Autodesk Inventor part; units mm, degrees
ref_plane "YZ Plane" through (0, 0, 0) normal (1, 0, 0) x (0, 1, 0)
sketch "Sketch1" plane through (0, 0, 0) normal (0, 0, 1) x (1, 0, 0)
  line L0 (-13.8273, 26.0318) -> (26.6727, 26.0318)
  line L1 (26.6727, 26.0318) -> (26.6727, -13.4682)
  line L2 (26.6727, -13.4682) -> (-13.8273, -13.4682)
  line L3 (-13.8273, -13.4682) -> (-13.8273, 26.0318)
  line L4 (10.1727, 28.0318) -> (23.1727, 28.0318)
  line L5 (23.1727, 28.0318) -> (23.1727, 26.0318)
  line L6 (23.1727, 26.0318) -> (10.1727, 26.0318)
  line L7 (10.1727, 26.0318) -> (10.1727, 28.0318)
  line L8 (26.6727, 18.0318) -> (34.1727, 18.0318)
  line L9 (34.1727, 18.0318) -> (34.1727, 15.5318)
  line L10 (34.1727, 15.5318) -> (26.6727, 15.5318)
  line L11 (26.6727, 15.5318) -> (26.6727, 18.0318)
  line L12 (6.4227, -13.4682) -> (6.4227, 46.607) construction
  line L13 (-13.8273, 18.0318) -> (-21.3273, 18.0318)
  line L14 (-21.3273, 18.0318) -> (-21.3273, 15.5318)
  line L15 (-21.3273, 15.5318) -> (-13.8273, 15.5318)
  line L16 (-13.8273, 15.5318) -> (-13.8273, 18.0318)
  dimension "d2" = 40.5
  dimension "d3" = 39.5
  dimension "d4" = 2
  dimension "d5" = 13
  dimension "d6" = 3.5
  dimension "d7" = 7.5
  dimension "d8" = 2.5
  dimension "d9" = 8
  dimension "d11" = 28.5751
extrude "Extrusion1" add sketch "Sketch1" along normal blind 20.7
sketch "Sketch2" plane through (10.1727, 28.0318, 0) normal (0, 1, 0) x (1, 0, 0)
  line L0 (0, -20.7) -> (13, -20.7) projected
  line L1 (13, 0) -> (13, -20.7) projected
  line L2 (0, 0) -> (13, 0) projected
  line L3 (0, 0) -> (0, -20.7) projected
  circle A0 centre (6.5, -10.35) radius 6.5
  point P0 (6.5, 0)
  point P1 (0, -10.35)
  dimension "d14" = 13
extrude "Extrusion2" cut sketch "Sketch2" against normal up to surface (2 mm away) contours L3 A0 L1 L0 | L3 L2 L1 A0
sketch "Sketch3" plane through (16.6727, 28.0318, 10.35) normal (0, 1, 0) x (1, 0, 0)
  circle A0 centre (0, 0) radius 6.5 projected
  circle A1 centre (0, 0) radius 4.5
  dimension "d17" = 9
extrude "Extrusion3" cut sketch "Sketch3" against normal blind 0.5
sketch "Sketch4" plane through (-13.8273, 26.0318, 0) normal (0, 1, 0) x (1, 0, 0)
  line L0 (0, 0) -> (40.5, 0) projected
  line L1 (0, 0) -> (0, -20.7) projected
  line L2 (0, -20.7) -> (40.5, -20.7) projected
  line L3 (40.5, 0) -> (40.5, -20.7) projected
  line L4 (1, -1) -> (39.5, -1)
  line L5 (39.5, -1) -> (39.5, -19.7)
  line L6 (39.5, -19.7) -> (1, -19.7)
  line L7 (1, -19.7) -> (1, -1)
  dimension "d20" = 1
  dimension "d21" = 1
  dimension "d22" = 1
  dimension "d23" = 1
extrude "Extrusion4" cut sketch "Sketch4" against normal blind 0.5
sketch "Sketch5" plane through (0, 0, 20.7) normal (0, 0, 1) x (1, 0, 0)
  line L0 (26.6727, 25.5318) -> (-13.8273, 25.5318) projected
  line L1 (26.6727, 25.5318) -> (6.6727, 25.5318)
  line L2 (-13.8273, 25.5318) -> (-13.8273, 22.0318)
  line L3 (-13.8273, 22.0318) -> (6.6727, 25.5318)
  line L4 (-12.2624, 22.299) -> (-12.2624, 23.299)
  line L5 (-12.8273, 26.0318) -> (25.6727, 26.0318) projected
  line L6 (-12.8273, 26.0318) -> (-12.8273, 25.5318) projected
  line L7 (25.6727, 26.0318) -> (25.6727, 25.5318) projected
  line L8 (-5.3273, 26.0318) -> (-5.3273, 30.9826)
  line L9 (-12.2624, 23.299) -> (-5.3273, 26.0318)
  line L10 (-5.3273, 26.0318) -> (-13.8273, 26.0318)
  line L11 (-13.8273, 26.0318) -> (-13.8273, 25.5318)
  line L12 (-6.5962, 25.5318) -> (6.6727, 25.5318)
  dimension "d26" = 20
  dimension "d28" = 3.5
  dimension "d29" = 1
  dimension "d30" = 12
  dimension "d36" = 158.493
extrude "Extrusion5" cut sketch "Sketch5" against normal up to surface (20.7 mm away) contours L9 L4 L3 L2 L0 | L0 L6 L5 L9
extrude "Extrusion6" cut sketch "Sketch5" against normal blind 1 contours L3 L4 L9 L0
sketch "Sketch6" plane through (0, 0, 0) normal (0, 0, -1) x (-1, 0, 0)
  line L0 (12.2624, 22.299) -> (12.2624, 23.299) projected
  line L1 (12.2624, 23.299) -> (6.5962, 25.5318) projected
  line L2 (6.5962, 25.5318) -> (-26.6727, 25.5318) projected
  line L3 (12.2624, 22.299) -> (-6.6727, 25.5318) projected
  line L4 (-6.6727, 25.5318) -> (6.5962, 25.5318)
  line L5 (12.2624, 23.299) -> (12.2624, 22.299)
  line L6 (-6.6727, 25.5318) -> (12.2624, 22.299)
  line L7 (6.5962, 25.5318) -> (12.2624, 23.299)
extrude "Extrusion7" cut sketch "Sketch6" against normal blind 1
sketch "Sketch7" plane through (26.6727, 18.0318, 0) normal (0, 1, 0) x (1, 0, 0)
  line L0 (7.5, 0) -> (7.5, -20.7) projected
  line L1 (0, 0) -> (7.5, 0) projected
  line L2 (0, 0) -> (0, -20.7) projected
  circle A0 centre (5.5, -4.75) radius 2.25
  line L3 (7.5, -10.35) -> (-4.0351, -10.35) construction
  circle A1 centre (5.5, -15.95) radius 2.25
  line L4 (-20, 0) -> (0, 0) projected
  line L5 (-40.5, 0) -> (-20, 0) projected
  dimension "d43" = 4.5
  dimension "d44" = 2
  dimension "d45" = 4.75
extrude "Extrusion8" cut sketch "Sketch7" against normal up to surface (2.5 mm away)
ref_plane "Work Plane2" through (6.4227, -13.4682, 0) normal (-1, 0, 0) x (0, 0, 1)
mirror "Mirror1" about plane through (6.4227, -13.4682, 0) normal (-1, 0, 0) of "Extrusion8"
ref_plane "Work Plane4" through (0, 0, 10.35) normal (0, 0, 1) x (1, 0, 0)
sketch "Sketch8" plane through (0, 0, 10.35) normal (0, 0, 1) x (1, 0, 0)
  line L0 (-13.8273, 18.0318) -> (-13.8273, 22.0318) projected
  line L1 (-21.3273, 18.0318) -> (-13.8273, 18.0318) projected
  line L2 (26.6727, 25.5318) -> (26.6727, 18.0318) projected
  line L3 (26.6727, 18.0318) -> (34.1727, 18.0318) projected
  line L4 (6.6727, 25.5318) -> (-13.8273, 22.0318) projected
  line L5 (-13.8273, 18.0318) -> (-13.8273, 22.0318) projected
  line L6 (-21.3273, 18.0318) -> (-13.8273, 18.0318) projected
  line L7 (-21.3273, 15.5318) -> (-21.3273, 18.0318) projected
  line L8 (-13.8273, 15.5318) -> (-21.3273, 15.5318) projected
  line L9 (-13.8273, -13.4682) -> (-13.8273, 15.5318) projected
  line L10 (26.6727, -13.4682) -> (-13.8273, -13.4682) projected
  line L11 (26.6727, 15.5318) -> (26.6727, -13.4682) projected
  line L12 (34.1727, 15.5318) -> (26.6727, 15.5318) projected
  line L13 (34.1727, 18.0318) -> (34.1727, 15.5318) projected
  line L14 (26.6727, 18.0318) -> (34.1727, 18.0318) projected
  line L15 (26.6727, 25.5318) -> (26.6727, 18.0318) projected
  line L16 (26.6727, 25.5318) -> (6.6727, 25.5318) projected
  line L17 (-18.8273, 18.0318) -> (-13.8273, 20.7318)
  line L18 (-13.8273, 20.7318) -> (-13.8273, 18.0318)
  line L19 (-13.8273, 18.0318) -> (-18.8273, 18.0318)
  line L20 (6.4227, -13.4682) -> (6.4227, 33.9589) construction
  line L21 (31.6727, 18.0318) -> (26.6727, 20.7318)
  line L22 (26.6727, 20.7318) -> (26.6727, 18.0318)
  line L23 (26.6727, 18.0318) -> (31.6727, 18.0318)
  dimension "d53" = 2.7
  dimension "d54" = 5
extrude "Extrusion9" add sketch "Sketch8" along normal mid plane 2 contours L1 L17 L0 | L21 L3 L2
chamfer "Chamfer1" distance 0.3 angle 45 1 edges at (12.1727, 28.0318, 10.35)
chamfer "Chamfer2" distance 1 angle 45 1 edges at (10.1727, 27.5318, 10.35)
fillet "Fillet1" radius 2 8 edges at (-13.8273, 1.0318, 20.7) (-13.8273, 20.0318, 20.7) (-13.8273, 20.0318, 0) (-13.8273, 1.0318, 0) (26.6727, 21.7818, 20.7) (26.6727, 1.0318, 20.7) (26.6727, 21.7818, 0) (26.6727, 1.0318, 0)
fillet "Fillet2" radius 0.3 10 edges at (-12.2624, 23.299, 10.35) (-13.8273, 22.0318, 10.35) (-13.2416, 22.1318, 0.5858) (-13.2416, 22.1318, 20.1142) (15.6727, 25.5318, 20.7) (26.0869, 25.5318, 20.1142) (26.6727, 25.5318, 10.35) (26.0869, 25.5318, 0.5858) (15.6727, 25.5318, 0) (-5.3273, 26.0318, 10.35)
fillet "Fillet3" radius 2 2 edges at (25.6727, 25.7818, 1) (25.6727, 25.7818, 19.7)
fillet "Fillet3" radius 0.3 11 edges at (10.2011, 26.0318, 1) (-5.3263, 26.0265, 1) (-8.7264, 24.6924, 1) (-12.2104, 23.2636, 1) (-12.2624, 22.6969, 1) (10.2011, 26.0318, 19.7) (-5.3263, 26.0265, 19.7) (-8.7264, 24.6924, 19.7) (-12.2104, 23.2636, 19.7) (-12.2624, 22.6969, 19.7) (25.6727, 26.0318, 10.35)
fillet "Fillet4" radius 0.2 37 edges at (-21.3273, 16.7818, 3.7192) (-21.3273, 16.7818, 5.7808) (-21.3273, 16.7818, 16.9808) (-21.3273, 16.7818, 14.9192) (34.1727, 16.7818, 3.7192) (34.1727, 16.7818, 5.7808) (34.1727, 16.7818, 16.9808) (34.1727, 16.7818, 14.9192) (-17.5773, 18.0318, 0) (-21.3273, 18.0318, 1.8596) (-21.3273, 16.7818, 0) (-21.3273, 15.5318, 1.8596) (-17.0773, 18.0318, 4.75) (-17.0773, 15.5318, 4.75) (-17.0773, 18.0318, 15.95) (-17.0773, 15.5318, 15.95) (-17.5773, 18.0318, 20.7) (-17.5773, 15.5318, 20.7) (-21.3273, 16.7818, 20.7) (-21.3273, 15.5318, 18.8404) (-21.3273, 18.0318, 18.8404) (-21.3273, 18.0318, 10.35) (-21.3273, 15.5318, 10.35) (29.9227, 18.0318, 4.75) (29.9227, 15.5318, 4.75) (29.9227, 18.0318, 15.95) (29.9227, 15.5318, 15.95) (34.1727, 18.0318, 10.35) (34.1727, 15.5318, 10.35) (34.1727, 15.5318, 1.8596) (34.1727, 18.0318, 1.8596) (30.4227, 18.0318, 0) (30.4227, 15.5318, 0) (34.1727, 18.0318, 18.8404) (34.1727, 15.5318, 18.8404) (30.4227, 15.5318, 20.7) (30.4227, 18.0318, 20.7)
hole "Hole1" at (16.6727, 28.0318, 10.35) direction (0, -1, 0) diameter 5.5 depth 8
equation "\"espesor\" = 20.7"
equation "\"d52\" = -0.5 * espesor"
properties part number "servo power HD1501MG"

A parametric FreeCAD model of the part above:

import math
import FreeCAD as App
import Part
import Sketcher
from FreeCAD import Vector


def edges_at(feature, points):
    """Names of the edges that pass closest to the given points."""
    edges = feature.Shape.Edges
    near = lambda p: min(range(len(edges)), key=lambda i: edges[i].distToShape(Part.Vertex(*p))[0])
    return sorted({f"Edge{near(p) + 1}" for p in points})

doc = App.newDocument("Part")
body = doc.addObject("PartDesign::Body", "Body")

# Sketch on XY plane
sketch1 = doc.addObject("Sketcher::SketchObject", "Sketch")
body.addObject(sketch1)
sketch1.AttachmentSupport = (doc.XY_Plane, [""])
sketch1.MapMode = "FlatFace"
sketch1.addGeometry(Part.LineSegment(Vector(10.2, 26, 0), Vector(-13.8, 26, 0)), False)
sketch1.addGeometry(Part.LineSegment(Vector(-13.8, 26, 0), Vector(-13.8, 18, 0)), False)
sketch1.addGeometry(Part.LineSegment(Vector(-13.8, 18, 0), Vector(-21.3, 18, 0)), False)
sketch1.addGeometry(Part.LineSegment(Vector(-21.3, 18, 0), Vector(-21.3, 15.5, 0)), False)
sketch1.addGeometry(Part.LineSegment(Vector(-21.3, 15.5, 0), Vector(-13.8, 15.5, 0)), False)
sketch1.addGeometry(Part.LineSegment(Vector(-13.8, 15.5, 0), Vector(-13.8, -13.5, 0)), False)
sketch1.addGeometry(Part.LineSegment(Vector(-13.8, -13.5, 0), Vector(26.7, -13.5, 0)), False)
sketch1.addGeometry(Part.LineSegment(Vector(26.7, -13.5, 0), Vector(26.7, 15.5, 0)), False)
sketch1.addGeometry(Part.LineSegment(Vector(26.7, 15.5, 0), Vector(34.2, 15.5, 0)), False)
sketch1.addGeometry(Part.LineSegment(Vector(34.2, 15.5, 0), Vector(34.2, 18, 0)), False)
sketch1.addGeometry(Part.LineSegment(Vector(34.2, 18, 0), Vector(26.7, 18, 0)), False)
sketch1.addGeometry(Part.LineSegment(Vector(26.7, 18, 0), Vector(26.7, 26, 0)), False)
sketch1.addGeometry(Part.LineSegment(Vector(26.7, 26, 0), Vector(23.2, 26, 0)), False)
sketch1.addGeometry(Part.LineSegment(Vector(23.2, 26, 0), Vector(23.2, 28, 0)), False)
sketch1.addGeometry(Part.LineSegment(Vector(23.2, 28, 0), Vector(10.2, 28, 0)), False)
sketch1.addGeometry(Part.LineSegment(Vector(10.2, 28, 0), Vector(10.2, 26, 0)), False)
sketch1.addConstraint(Sketcher.Constraint("Coincident", 0, 2, 1, 1))
sketch1.addConstraint(Sketcher.Constraint("Coincident", 1, 2, 2, 1))
sketch1.addConstraint(Sketcher.Constraint("Coincident", 2, 2, 3, 1))
sketch1.addConstraint(Sketcher.Constraint("Coincident", 3, 2, 4, 1))
sketch1.addConstraint(Sketcher.Constraint("Coincident", 4, 2, 5, 1))
sketch1.addConstraint(Sketcher.Constraint("Coincident", 5, 2, 6, 1))
sketch1.addConstraint(Sketcher.Constraint("Coincident", 6, 2, 7, 1))
sketch1.addConstraint(Sketcher.Constraint("Coincident", 7, 2, 8, 1))
sketch1.addConstraint(Sketcher.Constraint("Coincident", 8, 2, 9, 1))
sketch1.addConstraint(Sketcher.Constraint("Coincident", 9, 2, 10, 1))
sketch1.addConstraint(Sketcher.Constraint("Coincident", 10, 2, 11, 1))
sketch1.addConstraint(Sketcher.Constraint("Coincident", 11, 2, 12, 1))
sketch1.addConstraint(Sketcher.Constraint("Coincident", 12, 2, 13, 1))
sketch1.addConstraint(Sketcher.Constraint("Coincident", 13, 2, 14, 1))
sketch1.addConstraint(Sketcher.Constraint("Coincident", 14, 2, 15, 1))
sketch1.addConstraint(Sketcher.Constraint("Coincident", 15, 2, 0, 1))
sketch1.addConstraint(Sketcher.Constraint("Horizontal", 0))
sketch1.addConstraint(Sketcher.Constraint("Vertical", 1))
sketch1.addConstraint(Sketcher.Constraint("Horizontal", 2))
sketch1.addConstraint(Sketcher.Constraint("Vertical", 3))
sketch1.addConstraint(Sketcher.Constraint("Horizontal", 4))
sketch1.addConstraint(Sketcher.Constraint("Vertical", 5))
sketch1.addConstraint(Sketcher.Constraint("Horizontal", 6))
sketch1.addConstraint(Sketcher.Constraint("Vertical", 7))
sketch1.addConstraint(Sketcher.Constraint("Horizontal", 8))
sketch1.addConstraint(Sketcher.Constraint("Vertical", 9))
sketch1.addConstraint(Sketcher.Constraint("Horizontal", 10))
sketch1.addConstraint(Sketcher.Constraint("Vertical", 11))
sketch1.addConstraint(Sketcher.Constraint("Horizontal", 12))
sketch1.addConstraint(Sketcher.Constraint("Vertical", 13))
sketch1.addConstraint(Sketcher.Constraint("Horizontal", 14))
sketch1.addConstraint(Sketcher.Constraint("Vertical", 15))
sketch1.addConstraint(Sketcher.Constraint("Horizontal", 4, 2, 7, 2))
sketch1.addConstraint(Sketcher.Constraint("Horizontal", 2, 2, 9, 2))
sketch1.addConstraint(Sketcher.Constraint("Horizontal", 0, 2, 11, 2))
sketch1.addConstraint(Sketcher.Constraint("Vertical", 1, 2, 4, 2))
sketch1.addConstraint(Sketcher.Constraint("Vertical", 7, 2, 10, 2))
sketch1.addConstraint(Sketcher.Constraint("Equal", 4, 8))
sketch1.addConstraint(Sketcher.Constraint("DistanceX", 14, 2, 14, 1, 13.0))
sketch1.addConstraint(Sketcher.Constraint("DistanceY", 1, 2, 1, 1, 8.0))
sketch1.addConstraint(Sketcher.Constraint("DistanceY", 13, 1, 13, 2, 2.0))
sketch1.addConstraint(Sketcher.Constraint("DistanceX", 2, 2, 2, 1, 7.5))
sketch1.addConstraint(Sketcher.Constraint("DistanceX", 6, 1, 6, 2, 40.5))
sketch1.addConstraint(Sketcher.Constraint("DistanceX", 12, 2, 12, 1, 3.5))
sketch1.addConstraint(Sketcher.Constraint("DistanceY", 3, 2, 3, 1, 2.5))
sketch1.addConstraint(Sketcher.Constraint("DistanceY", 5, 2, 0, 2, 39.5))
sketch1.addConstraint(Sketcher.Constraint("DistanceX", 0, 2, -1, 1, 13.8273))
sketch1.addConstraint(Sketcher.Constraint("DistanceY", -1, 1, 0, 2, 26.0318))
pad1 = doc.addObject("PartDesign::Pad", "Pad")
body.addObject(pad1)
pad1.Profile = sketch1
pad1.Length = 20.7

# Sketch on XZ plane
sketch2 = doc.addObject("Sketcher::SketchObject", "Sketch001")
body.addObject(sketch2)
sketch2.AttachmentSupport = (doc.XZ_Plane, [""])
sketch2.MapMode = "FlatFace"
sketch2.AttachmentOffset = App.Placement(Vector(0, 0, -28.0318), App.Rotation())
sketch2.addGeometry(Part.LineSegment(Vector(10, 10, 0), Vector(10, 21, 0)), False)
sketch2.addGeometry(Part.LineSegment(Vector(10, 21, 0), Vector(23, 21, 0)), False)
sketch2.addGeometry(Part.LineSegment(Vector(23, 21, 0), Vector(23, 10, 0)), False)
sketch2.addGeometry(Part.ArcOfCircle(Part.Circle(Vector(17, 10, 0), Vector(0, 0, 1), 6), math.radians(0), math.radians(180)), False)
sketch2.addGeometry(Part.LineSegment(Vector(10, 0, 0), Vector(10, 10, 0)), False)
sketch2.addGeometry(Part.ArcOfCircle(Part.Circle(Vector(17, 10, 0), Vector(0, 0, 1), 6), math.radians(180), math.radians(360)), False)
sketch2.addGeometry(Part.LineSegment(Vector(23, 10, 0), Vector(23, 0, 0)), False)
sketch2.addGeometry(Part.LineSegment(Vector(23, 0, 0), Vector(10, 0, 0)), False)
sketch2.addConstraint(Sketcher.Constraint("Coincident", 0, 2, 1, 1))
sketch2.addConstraint(Sketcher.Constraint("Coincident", 1, 2, 2, 1))
sketch2.addConstraint(Sketcher.Constraint("Tangent", 2, 2, 3, 1))
sketch2.addConstraint(Sketcher.Constraint("Tangent", 3, 2, 0, 1))
sketch2.addConstraint(Sketcher.Constraint("Tangent", 4, 2, 5, 1))
sketch2.addConstraint(Sketcher.Constraint("Tangent", 5, 2, 6, 1))
sketch2.addConstraint(Sketcher.Constraint("Coincident", 6, 2, 7, 1))
sketch2.addConstraint(Sketcher.Constraint("Coincident", 7, 2, 4, 1))
sketch2.addConstraint(Sketcher.Constraint("Vertical", 0))
sketch2.addConstraint(Sketcher.Constraint("Horizontal", 1))
sketch2.addConstraint(Sketcher.Constraint("Vertical", 2))
sketch2.addConstraint(Sketcher.Constraint("Vertical", 4))
sketch2.addConstraint(Sketcher.Constraint("Vertical", 6))
sketch2.addConstraint(Sketcher.Constraint("Horizontal", 7))
sketch2.addConstraint(Sketcher.Constraint("Coincident", 5, 3, 3, 3))
sketch2.addConstraint(Sketcher.Constraint("Equal", 3, 5))
sketch2.addConstraint(Sketcher.Constraint("PointOnObject", 6, 2, -1))
sketch2.addConstraint(Sketcher.Constraint("Equal", 2, 4))
sketch2.addConstraint(Sketcher.Constraint("Radius", 3, 6.5))
sketch2.addConstraint(Sketcher.Constraint("DistanceY", 0, 1, 0, 2, 10.35))
sketch2.addConstraint(Sketcher.Constraint("DistanceX", -1, 1, 3, 3, 16.6727))
pocket1 = doc.addObject("PartDesign::Pocket", "Pocket")
body.addObject(pocket1)
pocket1.Profile = sketch2
pocket1.Length = 2
pocket1.Reversed = True

# Sketch on XZ plane
sketch3 = doc.addObject("Sketcher::SketchObject", "Sketch002")
body.addObject(sketch3)
sketch3.AttachmentSupport = (doc.XZ_Plane, [""])
sketch3.MapMode = "FlatFace"
sketch3.AttachmentOffset = App.Placement(Vector(0, 0, -28.0318), App.Rotation())
sketch3.addGeometry(Part.Circle(Vector(16.7, 10.3, 0), Vector(0, 0, 1), 6.5), False)
sketch3.addGeometry(Part.Circle(Vector(16.7, 10.3, 0), Vector(0, 0, 1), 4.5), False)
sketch3.addConstraint(Sketcher.Constraint("Coincident", 1, 3, 0, 3))
sketch3.addConstraint(Sketcher.Constraint("Diameter", 1, 9.0))
sketch3.addConstraint(Sketcher.Constraint("Diameter", 0, 13.0))
sketch3.addConstraint(Sketcher.Constraint("DistanceY", -1, 1, 0, 3, 10.35))
sketch3.addConstraint(Sketcher.Constraint("DistanceX", -1, 1, 0, 3, 16.6727))
pocket2 = doc.addObject("PartDesign::Pocket", "Pocket001")
body.addObject(pocket2)
pocket2.Profile = sketch3
pocket2.Length = 0.5
pocket2.Reversed = True

# Sketch on XZ plane
sketch4 = doc.addObject("Sketcher::SketchObject", "Sketch003")
body.addObject(sketch4)
sketch4.AttachmentSupport = (doc.XZ_Plane, [""])
sketch4.MapMode = "FlatFace"
sketch4.AttachmentOffset = App.Placement(Vector(0, 0, -26.0318), App.Rotation())
sketch4.addGeometry(Part.LineSegment(Vector(27, 0, 0), Vector(-14, 0, 0)), False)
sketch4.addGeometry(Part.LineSegment(Vector(-14, 0, 0), Vector(-14, 21, 0)), False)
sketch4.addGeometry(Part.LineSegment(Vector(-14, 21, 0), Vector(27, 21, 0)), False)
sketch4.addGeometry(Part.LineSegment(Vector(27, 21, 0), Vector(27, 0, 0)), False)
sketch4.addGeometry(Part.LineSegment(Vector(-13, 20, 0), Vector(-13, 1, 0)), False)
sketch4.addGeometry(Part.LineSegment(Vector(-13, 1, 0), Vector(26, 1, 0)), False)
sketch4.addGeometry(Part.LineSegment(Vector(26, 1, 0), Vector(26, 20, 0)), False)
sketch4.addGeometry(Part.LineSegment(Vector(26, 20, 0), Vector(-13, 20, 0)), False)
sketch4.addConstraint(Sketcher.Constraint("Coincident", 0, 2, 1, 1))
sketch4.addConstraint(Sketcher.Constraint("Coincident", 1, 2, 2, 1))
sketch4.addConstraint(Sketcher.Constraint("Coincident", 2, 2, 3, 1))
sketch4.addConstraint(Sketcher.Constraint("Coincident", 3, 2, 0, 1))
sketch4.addConstraint(Sketcher.Constraint("Coincident", 4, 2, 5, 1))
sketch4.addConstraint(Sketcher.Constraint("Coincident", 5, 2, 6, 1))
sketch4.addConstraint(Sketcher.Constraint("Coincident", 6, 2, 7, 1))
sketch4.addConstraint(Sketcher.Constraint("Coincident", 7, 2, 4, 1))
sketch4.addConstraint(Sketcher.Constraint("Horizontal", 0))
sketch4.addConstraint(Sketcher.Constraint("Vertical", 1))
sketch4.addConstraint(Sketcher.Constraint("Horizontal", 2))
sketch4.addConstraint(Sketcher.Constraint("Vertical", 3))
sketch4.addConstraint(Sketcher.Constraint("Vertical", 4))
sketch4.addConstraint(Sketcher.Constraint("Horizontal", 5))
sketch4.addConstraint(Sketcher.Constraint("Vertical", 6))
sketch4.addConstraint(Sketcher.Constraint("Horizontal", 7))
sketch4.addConstraint(Sketcher.Constraint("PointOnObject", 0, 2, -1))
sketch4.addConstraint(Sketcher.Constraint("DistanceY", -1, 1, 4, 2, 1.0))
sketch4.addConstraint(Sketcher.Constraint("DistanceX", 0, 2, 4, 2, 1.0))
sketch4.addConstraint(Sketcher.Constraint("DistanceX", 5, 2, 3, 2, 1.0))
sketch4.addConstraint(Sketcher.Constraint("DistanceY", 6, 2, 2, 2, 1.0))
sketch4.addConstraint(Sketcher.Constraint("DistanceX", 0, 2, 0, 1, 40.5))
sketch4.addConstraint(Sketcher.Constraint("DistanceY", 1, 1, 1, 2, 20.7))
sketch4.addConstraint(Sketcher.Constraint("DistanceX", 0, 2, -1, 1, 13.8273))
pocket3 = doc.addObject("PartDesign::Pocket", "Pocket002")
body.addObject(pocket3)
pocket3.Profile = sketch4
pocket3.Length = 0.5
pocket3.Reversed = True

# Sketch on XY plane
sketch5 = doc.addObject("Sketcher::SketchObject", "Sketch004")
body.addObject(sketch5)
sketch5.AttachmentSupport = (doc.XY_Plane, [""])
sketch5.MapMode = "FlatFace"
sketch5.AttachmentOffset = App.Placement(Vector(0, 0, 20.7), App.Rotation())
sketch5.addGeometry(Part.LineSegment(Vector(-12.3, 23.3, 0), Vector(-5.3, 26, 0)), False)
sketch5.addGeometry(Part.LineSegment(Vector(-5.3, 26, 0), Vector(-12.8, 26, 0)), False)
sketch5.addGeometry(Part.LineSegment(Vector(-12.8, 26, 0), Vector(-12.8, 25.5, 0)), False)
sketch5.addGeometry(Part.LineSegment(Vector(-12.8, 25.5, 0), Vector(-13.8, 25.5, 0)), False)
sketch5.addGeometry(Part.LineSegment(Vector(-13.8, 25.5, 0), Vector(-13.8, 22, 0)), False)
sketch5.addGeometry(Part.LineSegment(Vector(-13.8, 22, 0), Vector(-12.3, 22.3, 0)), False)
sketch5.addGeometry(Part.LineSegment(Vector(-12.3, 22.3, 0), Vector(-12.3, 23.3, 0)), False)
sketch5.addConstraint(Sketcher.Constraint("Coincident", 0, 2, 1, 1))
sketch5.addConstraint(Sketcher.Constraint("Coincident", 1, 2, 2, 1))
sketch5.addConstraint(Sketcher.Constraint("Coincident", 2, 2, 3, 1))
sketch5.addConstraint(Sketcher.Constraint("Coincident", 3, 2, 4, 1))
sketch5.addConstraint(Sketcher.Constraint("Coincident", 4, 2, 5, 1))
sketch5.addConstraint(Sketcher.Constraint("Coincident", 5, 2, 6, 1))
sketch5.addConstraint(Sketcher.Constraint("Coincident", 6, 2, 0, 1))
sketch5.addConstraint(Sketcher.Constraint("Horizontal", 1))
sketch5.addConstraint(Sketcher.Constraint("Vertical", 2))
sketch5.addConstraint(Sketcher.Constraint("Horizontal", 3))
sketch5.addConstraint(Sketcher.Constraint("Vertical", 4))
sketch5.addConstraint(Sketcher.Constraint("Vertical", 6))
sketch5.addConstraint(Sketcher.Constraint("Equal", 3, 6))
sketch5.addConstraint(Sketcher.Constraint("DistanceX", 3, 2, 3, 1, 1.0))
sketch5.addConstraint(Sketcher.Constraint("DistanceY", 4, 2, 4, 1, 3.5))
sketch5.addConstraint(Sketcher.Constraint("DistanceX", 1, 2, 1, 1, 7.5))
sketch5.addConstraint(Sketcher.Constraint("DistanceY", 2, 2, 2, 1, 0.5))
sketch5.addConstraint(Sketcher.Constraint("Distance", 0, 7.454))
sketch5.addConstraint(Sketcher.Constraint("DistanceY", -1, 1, 5, 2, 22.299))
sketch5.addConstraint(Sketcher.Constraint("DistanceX", 4, 2, 5, 2, 1.565))
sketch5.addConstraint(Sketcher.Constraint("DistanceX", 0, 2, -1, 1, 5.3273))
pocket4 = doc.addObject("PartDesign::Pocket", "Pocket003")
body.addObject(pocket4)
pocket4.Profile = sketch5
pocket4.Length = 20.7

# Sketch on XY plane
sketch6 = doc.addObject("Sketcher::SketchObject", "Sketch005")
body.addObject(sketch6)
sketch6.AttachmentSupport = (doc.XY_Plane, [""])
sketch6.MapMode = "FlatFace"
sketch6.AttachmentOffset = App.Placement(Vector(0, 0, 20.7), App.Rotation())
sketch6.addGeometry(Part.LineSegment(Vector(-12.3, 22.3, 0), Vector(6.7, 25.5, 0)), False)
sketch6.addGeometry(Part.LineSegment(Vector(6.7, 25.5, 0), Vector(-6.6, 25.5, 0)), False)
sketch6.addGeometry(Part.LineSegment(Vector(-6.6, 25.5, 0), Vector(-12.3, 23.3, 0)), False)
sketch6.addGeometry(Part.LineSegment(Vector(-12.3, 23.3, 0), Vector(-12.3, 22.3, 0)), False)
sketch6.addConstraint(Sketcher.Constraint("Coincident", 0, 2, 1, 1))
sketch6.addConstraint(Sketcher.Constraint("Coincident", 1, 2, 2, 1))
sketch6.addConstraint(Sketcher.Constraint("Coincident", 2, 2, 3, 1))
sketch6.addConstraint(Sketcher.Constraint("Coincident", 3, 2, 0, 1))
sketch6.addConstraint(Sketcher.Constraint("Horizontal", 1))
sketch6.addConstraint(Sketcher.Constraint("Vertical", 3))
sketch6.addConstraint(Sketcher.Constraint("DistanceY", 3, 2, 3, 1, 1.0))
sketch6.addConstraint(Sketcher.Constraint("DistanceX", 1, 2, 1, 1, 13.269))
sketch6.addConstraint(Sketcher.Constraint("Distance", 0, 19.209))
sketch6.addConstraint(Sketcher.Constraint("DistanceY", -1, 1, 2, 2, 23.299))
sketch6.addConstraint(Sketcher.Constraint("DistanceX", 2, 2, 0, 2, 18.935))
sketch6.addConstraint(Sketcher.Constraint("DistanceX", -1, 1, 0, 2, 6.6727))
pocket5 = doc.addObject("PartDesign::Pocket", "Pocket004")
body.addObject(pocket5)
pocket5.Profile = sketch6
pocket5.Length = 1

# Sketch on XY plane
sketch7 = doc.addObject("Sketcher::SketchObject", "Sketch006")
body.addObject(sketch7)
sketch7.AttachmentSupport = (doc.XY_Plane, [""])
sketch7.MapMode = "FlatFace"
sketch7.addGeometry(Part.LineSegment(Vector(6.7, 25.5, 0), Vector(-12.3, 22.3, 0)), False)
sketch7.addGeometry(Part.LineSegment(Vector(-12.3, 22.3, 0), Vector(-12.3, 23.3, 0)), False)
sketch7.addGeometry(Part.LineSegment(Vector(-12.3, 23.3, 0), Vector(-6.6, 25.5, 0)), False)
sketch7.addGeometry(Part.LineSegment(Vector(-6.6, 25.5, 0), Vector(6.7, 25.5, 0)), False)
sketch7.addConstraint(Sketcher.Constraint("Coincident", 0, 2, 1, 1))
sketch7.addConstraint(Sketcher.Constraint("Coincident", 1, 2, 2, 1))
sketch7.addConstraint(Sketcher.Constraint("Coincident", 2, 2, 3, 1))
sketch7.addConstraint(Sketcher.Constraint("Coincident", 3, 2, 0, 1))
sketch7.addConstraint(Sketcher.Constraint("Vertical", 1))
sketch7.addConstraint(Sketcher.Constraint("Horizontal", 3))
sketch7.addConstraint(Sketcher.Constraint("DistanceY", 1, 1, 1, 2, 1.0))
sketch7.addConstraint(Sketcher.Constraint("DistanceX", 3, 1, 3, 2, 13.269))
sketch7.addConstraint(Sketcher.Constraint("Distance", 0, 19.209))
sketch7.addConstraint(Sketcher.Constraint("DistanceY", -1, 1, 0, 2, 22.299))
sketch7.addConstraint(Sketcher.Constraint("DistanceX", 1, 2, 3, 2, 18.935))
sketch7.addConstraint(Sketcher.Constraint("DistanceX", 0, 2, -1, 1, 12.2624))
pocket6 = doc.addObject("PartDesign::Pocket", "Pocket005")
body.addObject(pocket6)
pocket6.Profile = sketch7
pocket6.Length = 1
pocket6.Reversed = True

# Sketch on XZ plane
sketch8 = doc.addObject("Sketcher::SketchObject", "Sketch007")
body.addObject(sketch8)
sketch8.AttachmentSupport = (doc.XZ_Plane, [""])
sketch8.MapMode = "FlatFace"
sketch8.AttachmentOffset = App.Placement(Vector(0, 0, -18.0318), App.Rotation())
sketch8.addGeometry(Part.Circle(Vector(32.2, 4.8, 0), Vector(0, 0, 1), 2.2), False)
sketch8.addGeometry(Part.Circle(Vector(32.2, 15.9, 0), Vector(0, 0, 1), 2.2), False)
sketch8.addConstraint(Sketcher.Constraint("Equal", 0, 1))
sketch8.addConstraint(Sketcher.Constraint("Vertical", 0, 3, 1, 3))
sketch8.addConstraint(Sketcher.Constraint("Diameter", 0, 4.5))
sketch8.addConstraint(Sketcher.Constraint("DistanceY", -1, 1, 0, 3, 4.75))
sketch8.addConstraint(Sketcher.Constraint("DistanceY", 0, 3, 1, 3, 11.2))
sketch8.addConstraint(Sketcher.Constraint("DistanceX", -1, 1, 0, 3, 32.1727))
pocket7 = doc.addObject("PartDesign::Pocket", "Pocket006")
body.addObject(pocket7)
pocket7.Profile = sketch8
pocket7.Length = 2.5
pocket7.Reversed = True
doc.recompute()

datumplane = doc.addObject("PartDesign::Plane", "DatumPlane")
body.addObject(datumplane)
datumplane.AttachmentSupport = (doc.YZ_Plane, [""])
datumplane.MapMode = "FlatFace"
datumplane.AttachmentOffset = App.Placement(Vector(0, 0, 6.4227), App.Rotation())
mirrored = doc.addObject("PartDesign::Mirrored", "Mirrored")
body.addObject(mirrored)
mirrored.Originals = [pocket7]
mirrored.MirrorPlane = (datumplane, [""])
body.Tip = mirrored

# Sketch on XY plane
sketch9 = doc.addObject("Sketcher::SketchObject", "Sketch008")
body.addObject(sketch9)
sketch9.AttachmentSupport = (doc.XY_Plane, [""])
sketch9.MapMode = "FlatFace"
sketch9.AttachmentOffset = App.Placement(Vector(0, 0, 10.35), App.Rotation())
sketch9.addGeometry(Part.LineSegment(Vector(-18.8, 18, 0), Vector(-13.8, 18, 0)), False)
sketch9.addGeometry(Part.LineSegment(Vector(-13.8, 18, 0), Vector(-13.8, 20.7, 0)), False)
sketch9.addGeometry(Part.LineSegment(Vector(-13.8, 20.7, 0), Vector(-18.8, 18, 0)), False)
sketch9.addGeometry(Part.LineSegment(Vector(31.7, 18, 0), Vector(26.7, 20.7, 0)), False)
sketch9.addGeometry(Part.LineSegment(Vector(26.7, 20.7, 0), Vector(26.7, 18, 0)), False)
sketch9.addGeometry(Part.LineSegment(Vector(26.7, 18, 0), Vector(31.7, 18, 0)), False)
sketch9.addConstraint(Sketcher.Constraint("Coincident", 0, 2, 1, 1))
sketch9.addConstraint(Sketcher.Constraint("Coincident", 1, 2, 2, 1))
sketch9.addConstraint(Sketcher.Constraint("Coincident", 2, 2, 0, 1))
sketch9.addConstraint(Sketcher.Constraint("Coincident", 3, 2, 4, 1))
sketch9.addConstraint(Sketcher.Constraint("Coincident", 4, 2, 5, 1))
sketch9.addConstraint(Sketcher.Constraint("Coincident", 5, 2, 3, 1))
sketch9.addConstraint(Sketcher.Constraint("Horizontal", 0))
sketch9.addConstraint(Sketcher.Constraint("Vertical", 1))
sketch9.addConstraint(Sketcher.Constraint("Vertical", 4))
sketch9.addConstraint(Sketcher.Constraint("Horizontal", 5))
sketch9.addConstraint(Sketcher.Constraint("Horizontal", 1, 2, 3, 2))
sketch9.addConstraint(Sketcher.Constraint("Horizontal", 2, 2, 4, 2))
sketch9.addConstraint(Sketcher.Constraint("Equal", 0, 5))
sketch9.addConstraint(Sketcher.Constraint("DistanceX", 0, 1, 0, 2, 5.0))
sketch9.addConstraint(Sketcher.Constraint("DistanceY", 1, 1, 1, 2, 2.7))
sketch9.addConstraint(Sketcher.Constraint("DistanceX", 1, 2, 3, 2, 40.5))
sketch9.addConstraint(Sketcher.Constraint("DistanceX", 0, 2, -1, 1, 13.8273))
sketch9.addConstraint(Sketcher.Constraint("DistanceY", -1, 1, 0, 2, 18.0318))
pad2 = doc.addObject("PartDesign::Pad", "Pad001")
body.addObject(pad2)
pad2.Profile = sketch9
pad2.Length = 2
pad2.Midplane = True
doc.recompute()

chamfer = doc.addObject("PartDesign::Chamfer", "Chamfer")
body.addObject(chamfer)
chamfer.Base = (pad2, edges_at(pad2, [(12.173, 28.032, 10.35)]))
chamfer.Size = 0.3
doc.recompute()

chamfer2 = doc.addObject("PartDesign::Chamfer", "Chamfer001")
body.addObject(chamfer2)
chamfer2.Base = (chamfer, edges_at(chamfer, [(10.173, 27.532, 10.35)]))
chamfer2.Size = 1
doc.recompute()

fillet = doc.addObject("PartDesign::Fillet", "Fillet")
body.addObject(fillet)
fillet.Base = (chamfer2, edges_at(chamfer2, [
    (-13.827, 1.032, 20.7),
    (-13.827, 20.032, 20.7),
    (-13.827, 20.032, 0),
    (-13.827, 1.032, 0),
    (26.673, 21.782, 20.7),
    (26.673, 1.032, 20.7),
    (26.673, 21.782, 0),
    (26.673, 1.032, 0),
]))
fillet.Radius = 2
doc.recompute()

fillet2 = doc.addObject("PartDesign::Fillet", "Fillet001")
body.addObject(fillet2)
fillet2.Base = (fillet, edges_at(fillet, [
    (-12.262, 23.299, 10.35),
    (-13.827, 22.032, 10.35),
    (-13.242, 22.132, 0.586),
    (-13.242, 22.132, 20.114),
    (15.673, 25.532, 20.7),
    (26.087, 25.532, 20.114),
    (26.673, 25.532, 10.35),
    (26.087, 25.532, 0.586),
    (15.673, 25.532, 0),
    (-5.327, 26.032, 10.35),
]))
fillet2.Radius = 0.3
doc.recompute()

fillet3 = doc.addObject("PartDesign::Fillet", "Fillet002")
body.addObject(fillet3)
fillet3.Base = (fillet2, edges_at(fillet2, [(25.673, 25.782, 1), (25.673, 25.782, 19.7)]))
fillet3.Radius = 2
doc.recompute()

fillet4 = doc.addObject("PartDesign::Fillet", "Fillet003")
body.addObject(fillet4)
fillet4.Base = (fillet3, edges_at(fillet3, [
    (10.201, 26.032, 1),
    (-5.326, 26.026, 1),
    (-8.726, 24.692, 1),
    (-12.21, 23.264, 1),
    (-12.262, 22.697, 1),
    (10.201, 26.032, 19.7),
    (-5.326, 26.026, 19.7),
    (-8.726, 24.692, 19.7),
    (-12.21, 23.264, 19.7),
    (-12.262, 22.697, 19.7),
    (25.673, 26.032, 10.35),
]))
fillet4.Radius = 0.3
doc.recompute()

fillet5 = doc.addObject("PartDesign::Fillet", "Fillet004")
body.addObject(fillet5)
fillet5.Base = (fillet4, edges_at(fillet4, [
    (-21.327, 16.782, 3.719),
    (-21.327, 16.782, 5.781),
    (-21.327, 16.782, 16.981),
    (-21.327, 16.782, 14.919),
    (34.173, 16.782, 3.719),
    (34.173, 16.782, 5.781),
    (34.173, 16.782, 16.981),
    (34.173, 16.782, 14.919),
    (-17.577, 18.032, 0),
    (-21.327, 18.032, 1.86),
    (-21.327, 16.782, 0),
    (-21.327, 15.532, 1.86),
    (-17.077, 18.032, 4.75),
    (-17.077, 15.532, 4.75),
    (-17.077, 18.032, 15.95),
    (-17.077, 15.532, 15.95),
    (-17.577, 18.032, 20.7),
    (-17.577, 15.532, 20.7),
    (-21.327, 16.782, 20.7),
    (-21.327, 15.532, 18.84),
    (-21.327, 18.032, 18.84),
    (-21.327, 18.032, 10.35),
    (-21.327, 15.532, 10.35),
    (29.923, 18.032, 4.75),
    (29.923, 15.532, 4.75),
    (29.923, 18.032, 15.95),
    (29.923, 15.532, 15.95),
    (34.173, 18.032, 10.35),
    (34.173, 15.532, 10.35),
    (34.173, 15.532, 1.86),
    (34.173, 18.032, 1.86),
    (30.423, 18.032, 0),
    (30.423, 15.532, 0),
    (34.173, 18.032, 18.84),
    (34.173, 15.532, 18.84),
    (30.423, 15.532, 20.7),
    (30.423, 18.032, 20.7),
]))
fillet5.Radius = 0.2

# Sketch on XZ plane
sketch10 = doc.addObject("Sketcher::SketchObject", "Sketch009")
body.addObject(sketch10)
sketch10.AttachmentSupport = (doc.XZ_Plane, [""])
sketch10.MapMode = "FlatFace"
sketch10.AttachmentOffset = App.Placement(Vector(0, 0, -28.0318), App.Rotation())
sketch10.addGeometry(Part.Circle(Vector(16.7, 10.3, 0), Vector(0, 0, 1), 2.8), False)
sketch10.addConstraint(Sketcher.Constraint("Diameter", 0, 5.5))
sketch10.addConstraint(Sketcher.Constraint("DistanceY", -1, 1, 0, 3, 10.35))
sketch10.addConstraint(Sketcher.Constraint("DistanceX", -1, 1, 0, 3, 16.6727))
doc.recompute()
hole = doc.addObject("PartDesign::Hole", "Hole")
body.addObject(hole)
hole.Profile = sketch10
hole.ThreadType = "None"
hole.Diameter = 5.5
hole.DepthType = "Dimension"
hole.Depth = 8
hole.DrillPoint = "Flat"
hole.Reversed = True

doc.recompute()
